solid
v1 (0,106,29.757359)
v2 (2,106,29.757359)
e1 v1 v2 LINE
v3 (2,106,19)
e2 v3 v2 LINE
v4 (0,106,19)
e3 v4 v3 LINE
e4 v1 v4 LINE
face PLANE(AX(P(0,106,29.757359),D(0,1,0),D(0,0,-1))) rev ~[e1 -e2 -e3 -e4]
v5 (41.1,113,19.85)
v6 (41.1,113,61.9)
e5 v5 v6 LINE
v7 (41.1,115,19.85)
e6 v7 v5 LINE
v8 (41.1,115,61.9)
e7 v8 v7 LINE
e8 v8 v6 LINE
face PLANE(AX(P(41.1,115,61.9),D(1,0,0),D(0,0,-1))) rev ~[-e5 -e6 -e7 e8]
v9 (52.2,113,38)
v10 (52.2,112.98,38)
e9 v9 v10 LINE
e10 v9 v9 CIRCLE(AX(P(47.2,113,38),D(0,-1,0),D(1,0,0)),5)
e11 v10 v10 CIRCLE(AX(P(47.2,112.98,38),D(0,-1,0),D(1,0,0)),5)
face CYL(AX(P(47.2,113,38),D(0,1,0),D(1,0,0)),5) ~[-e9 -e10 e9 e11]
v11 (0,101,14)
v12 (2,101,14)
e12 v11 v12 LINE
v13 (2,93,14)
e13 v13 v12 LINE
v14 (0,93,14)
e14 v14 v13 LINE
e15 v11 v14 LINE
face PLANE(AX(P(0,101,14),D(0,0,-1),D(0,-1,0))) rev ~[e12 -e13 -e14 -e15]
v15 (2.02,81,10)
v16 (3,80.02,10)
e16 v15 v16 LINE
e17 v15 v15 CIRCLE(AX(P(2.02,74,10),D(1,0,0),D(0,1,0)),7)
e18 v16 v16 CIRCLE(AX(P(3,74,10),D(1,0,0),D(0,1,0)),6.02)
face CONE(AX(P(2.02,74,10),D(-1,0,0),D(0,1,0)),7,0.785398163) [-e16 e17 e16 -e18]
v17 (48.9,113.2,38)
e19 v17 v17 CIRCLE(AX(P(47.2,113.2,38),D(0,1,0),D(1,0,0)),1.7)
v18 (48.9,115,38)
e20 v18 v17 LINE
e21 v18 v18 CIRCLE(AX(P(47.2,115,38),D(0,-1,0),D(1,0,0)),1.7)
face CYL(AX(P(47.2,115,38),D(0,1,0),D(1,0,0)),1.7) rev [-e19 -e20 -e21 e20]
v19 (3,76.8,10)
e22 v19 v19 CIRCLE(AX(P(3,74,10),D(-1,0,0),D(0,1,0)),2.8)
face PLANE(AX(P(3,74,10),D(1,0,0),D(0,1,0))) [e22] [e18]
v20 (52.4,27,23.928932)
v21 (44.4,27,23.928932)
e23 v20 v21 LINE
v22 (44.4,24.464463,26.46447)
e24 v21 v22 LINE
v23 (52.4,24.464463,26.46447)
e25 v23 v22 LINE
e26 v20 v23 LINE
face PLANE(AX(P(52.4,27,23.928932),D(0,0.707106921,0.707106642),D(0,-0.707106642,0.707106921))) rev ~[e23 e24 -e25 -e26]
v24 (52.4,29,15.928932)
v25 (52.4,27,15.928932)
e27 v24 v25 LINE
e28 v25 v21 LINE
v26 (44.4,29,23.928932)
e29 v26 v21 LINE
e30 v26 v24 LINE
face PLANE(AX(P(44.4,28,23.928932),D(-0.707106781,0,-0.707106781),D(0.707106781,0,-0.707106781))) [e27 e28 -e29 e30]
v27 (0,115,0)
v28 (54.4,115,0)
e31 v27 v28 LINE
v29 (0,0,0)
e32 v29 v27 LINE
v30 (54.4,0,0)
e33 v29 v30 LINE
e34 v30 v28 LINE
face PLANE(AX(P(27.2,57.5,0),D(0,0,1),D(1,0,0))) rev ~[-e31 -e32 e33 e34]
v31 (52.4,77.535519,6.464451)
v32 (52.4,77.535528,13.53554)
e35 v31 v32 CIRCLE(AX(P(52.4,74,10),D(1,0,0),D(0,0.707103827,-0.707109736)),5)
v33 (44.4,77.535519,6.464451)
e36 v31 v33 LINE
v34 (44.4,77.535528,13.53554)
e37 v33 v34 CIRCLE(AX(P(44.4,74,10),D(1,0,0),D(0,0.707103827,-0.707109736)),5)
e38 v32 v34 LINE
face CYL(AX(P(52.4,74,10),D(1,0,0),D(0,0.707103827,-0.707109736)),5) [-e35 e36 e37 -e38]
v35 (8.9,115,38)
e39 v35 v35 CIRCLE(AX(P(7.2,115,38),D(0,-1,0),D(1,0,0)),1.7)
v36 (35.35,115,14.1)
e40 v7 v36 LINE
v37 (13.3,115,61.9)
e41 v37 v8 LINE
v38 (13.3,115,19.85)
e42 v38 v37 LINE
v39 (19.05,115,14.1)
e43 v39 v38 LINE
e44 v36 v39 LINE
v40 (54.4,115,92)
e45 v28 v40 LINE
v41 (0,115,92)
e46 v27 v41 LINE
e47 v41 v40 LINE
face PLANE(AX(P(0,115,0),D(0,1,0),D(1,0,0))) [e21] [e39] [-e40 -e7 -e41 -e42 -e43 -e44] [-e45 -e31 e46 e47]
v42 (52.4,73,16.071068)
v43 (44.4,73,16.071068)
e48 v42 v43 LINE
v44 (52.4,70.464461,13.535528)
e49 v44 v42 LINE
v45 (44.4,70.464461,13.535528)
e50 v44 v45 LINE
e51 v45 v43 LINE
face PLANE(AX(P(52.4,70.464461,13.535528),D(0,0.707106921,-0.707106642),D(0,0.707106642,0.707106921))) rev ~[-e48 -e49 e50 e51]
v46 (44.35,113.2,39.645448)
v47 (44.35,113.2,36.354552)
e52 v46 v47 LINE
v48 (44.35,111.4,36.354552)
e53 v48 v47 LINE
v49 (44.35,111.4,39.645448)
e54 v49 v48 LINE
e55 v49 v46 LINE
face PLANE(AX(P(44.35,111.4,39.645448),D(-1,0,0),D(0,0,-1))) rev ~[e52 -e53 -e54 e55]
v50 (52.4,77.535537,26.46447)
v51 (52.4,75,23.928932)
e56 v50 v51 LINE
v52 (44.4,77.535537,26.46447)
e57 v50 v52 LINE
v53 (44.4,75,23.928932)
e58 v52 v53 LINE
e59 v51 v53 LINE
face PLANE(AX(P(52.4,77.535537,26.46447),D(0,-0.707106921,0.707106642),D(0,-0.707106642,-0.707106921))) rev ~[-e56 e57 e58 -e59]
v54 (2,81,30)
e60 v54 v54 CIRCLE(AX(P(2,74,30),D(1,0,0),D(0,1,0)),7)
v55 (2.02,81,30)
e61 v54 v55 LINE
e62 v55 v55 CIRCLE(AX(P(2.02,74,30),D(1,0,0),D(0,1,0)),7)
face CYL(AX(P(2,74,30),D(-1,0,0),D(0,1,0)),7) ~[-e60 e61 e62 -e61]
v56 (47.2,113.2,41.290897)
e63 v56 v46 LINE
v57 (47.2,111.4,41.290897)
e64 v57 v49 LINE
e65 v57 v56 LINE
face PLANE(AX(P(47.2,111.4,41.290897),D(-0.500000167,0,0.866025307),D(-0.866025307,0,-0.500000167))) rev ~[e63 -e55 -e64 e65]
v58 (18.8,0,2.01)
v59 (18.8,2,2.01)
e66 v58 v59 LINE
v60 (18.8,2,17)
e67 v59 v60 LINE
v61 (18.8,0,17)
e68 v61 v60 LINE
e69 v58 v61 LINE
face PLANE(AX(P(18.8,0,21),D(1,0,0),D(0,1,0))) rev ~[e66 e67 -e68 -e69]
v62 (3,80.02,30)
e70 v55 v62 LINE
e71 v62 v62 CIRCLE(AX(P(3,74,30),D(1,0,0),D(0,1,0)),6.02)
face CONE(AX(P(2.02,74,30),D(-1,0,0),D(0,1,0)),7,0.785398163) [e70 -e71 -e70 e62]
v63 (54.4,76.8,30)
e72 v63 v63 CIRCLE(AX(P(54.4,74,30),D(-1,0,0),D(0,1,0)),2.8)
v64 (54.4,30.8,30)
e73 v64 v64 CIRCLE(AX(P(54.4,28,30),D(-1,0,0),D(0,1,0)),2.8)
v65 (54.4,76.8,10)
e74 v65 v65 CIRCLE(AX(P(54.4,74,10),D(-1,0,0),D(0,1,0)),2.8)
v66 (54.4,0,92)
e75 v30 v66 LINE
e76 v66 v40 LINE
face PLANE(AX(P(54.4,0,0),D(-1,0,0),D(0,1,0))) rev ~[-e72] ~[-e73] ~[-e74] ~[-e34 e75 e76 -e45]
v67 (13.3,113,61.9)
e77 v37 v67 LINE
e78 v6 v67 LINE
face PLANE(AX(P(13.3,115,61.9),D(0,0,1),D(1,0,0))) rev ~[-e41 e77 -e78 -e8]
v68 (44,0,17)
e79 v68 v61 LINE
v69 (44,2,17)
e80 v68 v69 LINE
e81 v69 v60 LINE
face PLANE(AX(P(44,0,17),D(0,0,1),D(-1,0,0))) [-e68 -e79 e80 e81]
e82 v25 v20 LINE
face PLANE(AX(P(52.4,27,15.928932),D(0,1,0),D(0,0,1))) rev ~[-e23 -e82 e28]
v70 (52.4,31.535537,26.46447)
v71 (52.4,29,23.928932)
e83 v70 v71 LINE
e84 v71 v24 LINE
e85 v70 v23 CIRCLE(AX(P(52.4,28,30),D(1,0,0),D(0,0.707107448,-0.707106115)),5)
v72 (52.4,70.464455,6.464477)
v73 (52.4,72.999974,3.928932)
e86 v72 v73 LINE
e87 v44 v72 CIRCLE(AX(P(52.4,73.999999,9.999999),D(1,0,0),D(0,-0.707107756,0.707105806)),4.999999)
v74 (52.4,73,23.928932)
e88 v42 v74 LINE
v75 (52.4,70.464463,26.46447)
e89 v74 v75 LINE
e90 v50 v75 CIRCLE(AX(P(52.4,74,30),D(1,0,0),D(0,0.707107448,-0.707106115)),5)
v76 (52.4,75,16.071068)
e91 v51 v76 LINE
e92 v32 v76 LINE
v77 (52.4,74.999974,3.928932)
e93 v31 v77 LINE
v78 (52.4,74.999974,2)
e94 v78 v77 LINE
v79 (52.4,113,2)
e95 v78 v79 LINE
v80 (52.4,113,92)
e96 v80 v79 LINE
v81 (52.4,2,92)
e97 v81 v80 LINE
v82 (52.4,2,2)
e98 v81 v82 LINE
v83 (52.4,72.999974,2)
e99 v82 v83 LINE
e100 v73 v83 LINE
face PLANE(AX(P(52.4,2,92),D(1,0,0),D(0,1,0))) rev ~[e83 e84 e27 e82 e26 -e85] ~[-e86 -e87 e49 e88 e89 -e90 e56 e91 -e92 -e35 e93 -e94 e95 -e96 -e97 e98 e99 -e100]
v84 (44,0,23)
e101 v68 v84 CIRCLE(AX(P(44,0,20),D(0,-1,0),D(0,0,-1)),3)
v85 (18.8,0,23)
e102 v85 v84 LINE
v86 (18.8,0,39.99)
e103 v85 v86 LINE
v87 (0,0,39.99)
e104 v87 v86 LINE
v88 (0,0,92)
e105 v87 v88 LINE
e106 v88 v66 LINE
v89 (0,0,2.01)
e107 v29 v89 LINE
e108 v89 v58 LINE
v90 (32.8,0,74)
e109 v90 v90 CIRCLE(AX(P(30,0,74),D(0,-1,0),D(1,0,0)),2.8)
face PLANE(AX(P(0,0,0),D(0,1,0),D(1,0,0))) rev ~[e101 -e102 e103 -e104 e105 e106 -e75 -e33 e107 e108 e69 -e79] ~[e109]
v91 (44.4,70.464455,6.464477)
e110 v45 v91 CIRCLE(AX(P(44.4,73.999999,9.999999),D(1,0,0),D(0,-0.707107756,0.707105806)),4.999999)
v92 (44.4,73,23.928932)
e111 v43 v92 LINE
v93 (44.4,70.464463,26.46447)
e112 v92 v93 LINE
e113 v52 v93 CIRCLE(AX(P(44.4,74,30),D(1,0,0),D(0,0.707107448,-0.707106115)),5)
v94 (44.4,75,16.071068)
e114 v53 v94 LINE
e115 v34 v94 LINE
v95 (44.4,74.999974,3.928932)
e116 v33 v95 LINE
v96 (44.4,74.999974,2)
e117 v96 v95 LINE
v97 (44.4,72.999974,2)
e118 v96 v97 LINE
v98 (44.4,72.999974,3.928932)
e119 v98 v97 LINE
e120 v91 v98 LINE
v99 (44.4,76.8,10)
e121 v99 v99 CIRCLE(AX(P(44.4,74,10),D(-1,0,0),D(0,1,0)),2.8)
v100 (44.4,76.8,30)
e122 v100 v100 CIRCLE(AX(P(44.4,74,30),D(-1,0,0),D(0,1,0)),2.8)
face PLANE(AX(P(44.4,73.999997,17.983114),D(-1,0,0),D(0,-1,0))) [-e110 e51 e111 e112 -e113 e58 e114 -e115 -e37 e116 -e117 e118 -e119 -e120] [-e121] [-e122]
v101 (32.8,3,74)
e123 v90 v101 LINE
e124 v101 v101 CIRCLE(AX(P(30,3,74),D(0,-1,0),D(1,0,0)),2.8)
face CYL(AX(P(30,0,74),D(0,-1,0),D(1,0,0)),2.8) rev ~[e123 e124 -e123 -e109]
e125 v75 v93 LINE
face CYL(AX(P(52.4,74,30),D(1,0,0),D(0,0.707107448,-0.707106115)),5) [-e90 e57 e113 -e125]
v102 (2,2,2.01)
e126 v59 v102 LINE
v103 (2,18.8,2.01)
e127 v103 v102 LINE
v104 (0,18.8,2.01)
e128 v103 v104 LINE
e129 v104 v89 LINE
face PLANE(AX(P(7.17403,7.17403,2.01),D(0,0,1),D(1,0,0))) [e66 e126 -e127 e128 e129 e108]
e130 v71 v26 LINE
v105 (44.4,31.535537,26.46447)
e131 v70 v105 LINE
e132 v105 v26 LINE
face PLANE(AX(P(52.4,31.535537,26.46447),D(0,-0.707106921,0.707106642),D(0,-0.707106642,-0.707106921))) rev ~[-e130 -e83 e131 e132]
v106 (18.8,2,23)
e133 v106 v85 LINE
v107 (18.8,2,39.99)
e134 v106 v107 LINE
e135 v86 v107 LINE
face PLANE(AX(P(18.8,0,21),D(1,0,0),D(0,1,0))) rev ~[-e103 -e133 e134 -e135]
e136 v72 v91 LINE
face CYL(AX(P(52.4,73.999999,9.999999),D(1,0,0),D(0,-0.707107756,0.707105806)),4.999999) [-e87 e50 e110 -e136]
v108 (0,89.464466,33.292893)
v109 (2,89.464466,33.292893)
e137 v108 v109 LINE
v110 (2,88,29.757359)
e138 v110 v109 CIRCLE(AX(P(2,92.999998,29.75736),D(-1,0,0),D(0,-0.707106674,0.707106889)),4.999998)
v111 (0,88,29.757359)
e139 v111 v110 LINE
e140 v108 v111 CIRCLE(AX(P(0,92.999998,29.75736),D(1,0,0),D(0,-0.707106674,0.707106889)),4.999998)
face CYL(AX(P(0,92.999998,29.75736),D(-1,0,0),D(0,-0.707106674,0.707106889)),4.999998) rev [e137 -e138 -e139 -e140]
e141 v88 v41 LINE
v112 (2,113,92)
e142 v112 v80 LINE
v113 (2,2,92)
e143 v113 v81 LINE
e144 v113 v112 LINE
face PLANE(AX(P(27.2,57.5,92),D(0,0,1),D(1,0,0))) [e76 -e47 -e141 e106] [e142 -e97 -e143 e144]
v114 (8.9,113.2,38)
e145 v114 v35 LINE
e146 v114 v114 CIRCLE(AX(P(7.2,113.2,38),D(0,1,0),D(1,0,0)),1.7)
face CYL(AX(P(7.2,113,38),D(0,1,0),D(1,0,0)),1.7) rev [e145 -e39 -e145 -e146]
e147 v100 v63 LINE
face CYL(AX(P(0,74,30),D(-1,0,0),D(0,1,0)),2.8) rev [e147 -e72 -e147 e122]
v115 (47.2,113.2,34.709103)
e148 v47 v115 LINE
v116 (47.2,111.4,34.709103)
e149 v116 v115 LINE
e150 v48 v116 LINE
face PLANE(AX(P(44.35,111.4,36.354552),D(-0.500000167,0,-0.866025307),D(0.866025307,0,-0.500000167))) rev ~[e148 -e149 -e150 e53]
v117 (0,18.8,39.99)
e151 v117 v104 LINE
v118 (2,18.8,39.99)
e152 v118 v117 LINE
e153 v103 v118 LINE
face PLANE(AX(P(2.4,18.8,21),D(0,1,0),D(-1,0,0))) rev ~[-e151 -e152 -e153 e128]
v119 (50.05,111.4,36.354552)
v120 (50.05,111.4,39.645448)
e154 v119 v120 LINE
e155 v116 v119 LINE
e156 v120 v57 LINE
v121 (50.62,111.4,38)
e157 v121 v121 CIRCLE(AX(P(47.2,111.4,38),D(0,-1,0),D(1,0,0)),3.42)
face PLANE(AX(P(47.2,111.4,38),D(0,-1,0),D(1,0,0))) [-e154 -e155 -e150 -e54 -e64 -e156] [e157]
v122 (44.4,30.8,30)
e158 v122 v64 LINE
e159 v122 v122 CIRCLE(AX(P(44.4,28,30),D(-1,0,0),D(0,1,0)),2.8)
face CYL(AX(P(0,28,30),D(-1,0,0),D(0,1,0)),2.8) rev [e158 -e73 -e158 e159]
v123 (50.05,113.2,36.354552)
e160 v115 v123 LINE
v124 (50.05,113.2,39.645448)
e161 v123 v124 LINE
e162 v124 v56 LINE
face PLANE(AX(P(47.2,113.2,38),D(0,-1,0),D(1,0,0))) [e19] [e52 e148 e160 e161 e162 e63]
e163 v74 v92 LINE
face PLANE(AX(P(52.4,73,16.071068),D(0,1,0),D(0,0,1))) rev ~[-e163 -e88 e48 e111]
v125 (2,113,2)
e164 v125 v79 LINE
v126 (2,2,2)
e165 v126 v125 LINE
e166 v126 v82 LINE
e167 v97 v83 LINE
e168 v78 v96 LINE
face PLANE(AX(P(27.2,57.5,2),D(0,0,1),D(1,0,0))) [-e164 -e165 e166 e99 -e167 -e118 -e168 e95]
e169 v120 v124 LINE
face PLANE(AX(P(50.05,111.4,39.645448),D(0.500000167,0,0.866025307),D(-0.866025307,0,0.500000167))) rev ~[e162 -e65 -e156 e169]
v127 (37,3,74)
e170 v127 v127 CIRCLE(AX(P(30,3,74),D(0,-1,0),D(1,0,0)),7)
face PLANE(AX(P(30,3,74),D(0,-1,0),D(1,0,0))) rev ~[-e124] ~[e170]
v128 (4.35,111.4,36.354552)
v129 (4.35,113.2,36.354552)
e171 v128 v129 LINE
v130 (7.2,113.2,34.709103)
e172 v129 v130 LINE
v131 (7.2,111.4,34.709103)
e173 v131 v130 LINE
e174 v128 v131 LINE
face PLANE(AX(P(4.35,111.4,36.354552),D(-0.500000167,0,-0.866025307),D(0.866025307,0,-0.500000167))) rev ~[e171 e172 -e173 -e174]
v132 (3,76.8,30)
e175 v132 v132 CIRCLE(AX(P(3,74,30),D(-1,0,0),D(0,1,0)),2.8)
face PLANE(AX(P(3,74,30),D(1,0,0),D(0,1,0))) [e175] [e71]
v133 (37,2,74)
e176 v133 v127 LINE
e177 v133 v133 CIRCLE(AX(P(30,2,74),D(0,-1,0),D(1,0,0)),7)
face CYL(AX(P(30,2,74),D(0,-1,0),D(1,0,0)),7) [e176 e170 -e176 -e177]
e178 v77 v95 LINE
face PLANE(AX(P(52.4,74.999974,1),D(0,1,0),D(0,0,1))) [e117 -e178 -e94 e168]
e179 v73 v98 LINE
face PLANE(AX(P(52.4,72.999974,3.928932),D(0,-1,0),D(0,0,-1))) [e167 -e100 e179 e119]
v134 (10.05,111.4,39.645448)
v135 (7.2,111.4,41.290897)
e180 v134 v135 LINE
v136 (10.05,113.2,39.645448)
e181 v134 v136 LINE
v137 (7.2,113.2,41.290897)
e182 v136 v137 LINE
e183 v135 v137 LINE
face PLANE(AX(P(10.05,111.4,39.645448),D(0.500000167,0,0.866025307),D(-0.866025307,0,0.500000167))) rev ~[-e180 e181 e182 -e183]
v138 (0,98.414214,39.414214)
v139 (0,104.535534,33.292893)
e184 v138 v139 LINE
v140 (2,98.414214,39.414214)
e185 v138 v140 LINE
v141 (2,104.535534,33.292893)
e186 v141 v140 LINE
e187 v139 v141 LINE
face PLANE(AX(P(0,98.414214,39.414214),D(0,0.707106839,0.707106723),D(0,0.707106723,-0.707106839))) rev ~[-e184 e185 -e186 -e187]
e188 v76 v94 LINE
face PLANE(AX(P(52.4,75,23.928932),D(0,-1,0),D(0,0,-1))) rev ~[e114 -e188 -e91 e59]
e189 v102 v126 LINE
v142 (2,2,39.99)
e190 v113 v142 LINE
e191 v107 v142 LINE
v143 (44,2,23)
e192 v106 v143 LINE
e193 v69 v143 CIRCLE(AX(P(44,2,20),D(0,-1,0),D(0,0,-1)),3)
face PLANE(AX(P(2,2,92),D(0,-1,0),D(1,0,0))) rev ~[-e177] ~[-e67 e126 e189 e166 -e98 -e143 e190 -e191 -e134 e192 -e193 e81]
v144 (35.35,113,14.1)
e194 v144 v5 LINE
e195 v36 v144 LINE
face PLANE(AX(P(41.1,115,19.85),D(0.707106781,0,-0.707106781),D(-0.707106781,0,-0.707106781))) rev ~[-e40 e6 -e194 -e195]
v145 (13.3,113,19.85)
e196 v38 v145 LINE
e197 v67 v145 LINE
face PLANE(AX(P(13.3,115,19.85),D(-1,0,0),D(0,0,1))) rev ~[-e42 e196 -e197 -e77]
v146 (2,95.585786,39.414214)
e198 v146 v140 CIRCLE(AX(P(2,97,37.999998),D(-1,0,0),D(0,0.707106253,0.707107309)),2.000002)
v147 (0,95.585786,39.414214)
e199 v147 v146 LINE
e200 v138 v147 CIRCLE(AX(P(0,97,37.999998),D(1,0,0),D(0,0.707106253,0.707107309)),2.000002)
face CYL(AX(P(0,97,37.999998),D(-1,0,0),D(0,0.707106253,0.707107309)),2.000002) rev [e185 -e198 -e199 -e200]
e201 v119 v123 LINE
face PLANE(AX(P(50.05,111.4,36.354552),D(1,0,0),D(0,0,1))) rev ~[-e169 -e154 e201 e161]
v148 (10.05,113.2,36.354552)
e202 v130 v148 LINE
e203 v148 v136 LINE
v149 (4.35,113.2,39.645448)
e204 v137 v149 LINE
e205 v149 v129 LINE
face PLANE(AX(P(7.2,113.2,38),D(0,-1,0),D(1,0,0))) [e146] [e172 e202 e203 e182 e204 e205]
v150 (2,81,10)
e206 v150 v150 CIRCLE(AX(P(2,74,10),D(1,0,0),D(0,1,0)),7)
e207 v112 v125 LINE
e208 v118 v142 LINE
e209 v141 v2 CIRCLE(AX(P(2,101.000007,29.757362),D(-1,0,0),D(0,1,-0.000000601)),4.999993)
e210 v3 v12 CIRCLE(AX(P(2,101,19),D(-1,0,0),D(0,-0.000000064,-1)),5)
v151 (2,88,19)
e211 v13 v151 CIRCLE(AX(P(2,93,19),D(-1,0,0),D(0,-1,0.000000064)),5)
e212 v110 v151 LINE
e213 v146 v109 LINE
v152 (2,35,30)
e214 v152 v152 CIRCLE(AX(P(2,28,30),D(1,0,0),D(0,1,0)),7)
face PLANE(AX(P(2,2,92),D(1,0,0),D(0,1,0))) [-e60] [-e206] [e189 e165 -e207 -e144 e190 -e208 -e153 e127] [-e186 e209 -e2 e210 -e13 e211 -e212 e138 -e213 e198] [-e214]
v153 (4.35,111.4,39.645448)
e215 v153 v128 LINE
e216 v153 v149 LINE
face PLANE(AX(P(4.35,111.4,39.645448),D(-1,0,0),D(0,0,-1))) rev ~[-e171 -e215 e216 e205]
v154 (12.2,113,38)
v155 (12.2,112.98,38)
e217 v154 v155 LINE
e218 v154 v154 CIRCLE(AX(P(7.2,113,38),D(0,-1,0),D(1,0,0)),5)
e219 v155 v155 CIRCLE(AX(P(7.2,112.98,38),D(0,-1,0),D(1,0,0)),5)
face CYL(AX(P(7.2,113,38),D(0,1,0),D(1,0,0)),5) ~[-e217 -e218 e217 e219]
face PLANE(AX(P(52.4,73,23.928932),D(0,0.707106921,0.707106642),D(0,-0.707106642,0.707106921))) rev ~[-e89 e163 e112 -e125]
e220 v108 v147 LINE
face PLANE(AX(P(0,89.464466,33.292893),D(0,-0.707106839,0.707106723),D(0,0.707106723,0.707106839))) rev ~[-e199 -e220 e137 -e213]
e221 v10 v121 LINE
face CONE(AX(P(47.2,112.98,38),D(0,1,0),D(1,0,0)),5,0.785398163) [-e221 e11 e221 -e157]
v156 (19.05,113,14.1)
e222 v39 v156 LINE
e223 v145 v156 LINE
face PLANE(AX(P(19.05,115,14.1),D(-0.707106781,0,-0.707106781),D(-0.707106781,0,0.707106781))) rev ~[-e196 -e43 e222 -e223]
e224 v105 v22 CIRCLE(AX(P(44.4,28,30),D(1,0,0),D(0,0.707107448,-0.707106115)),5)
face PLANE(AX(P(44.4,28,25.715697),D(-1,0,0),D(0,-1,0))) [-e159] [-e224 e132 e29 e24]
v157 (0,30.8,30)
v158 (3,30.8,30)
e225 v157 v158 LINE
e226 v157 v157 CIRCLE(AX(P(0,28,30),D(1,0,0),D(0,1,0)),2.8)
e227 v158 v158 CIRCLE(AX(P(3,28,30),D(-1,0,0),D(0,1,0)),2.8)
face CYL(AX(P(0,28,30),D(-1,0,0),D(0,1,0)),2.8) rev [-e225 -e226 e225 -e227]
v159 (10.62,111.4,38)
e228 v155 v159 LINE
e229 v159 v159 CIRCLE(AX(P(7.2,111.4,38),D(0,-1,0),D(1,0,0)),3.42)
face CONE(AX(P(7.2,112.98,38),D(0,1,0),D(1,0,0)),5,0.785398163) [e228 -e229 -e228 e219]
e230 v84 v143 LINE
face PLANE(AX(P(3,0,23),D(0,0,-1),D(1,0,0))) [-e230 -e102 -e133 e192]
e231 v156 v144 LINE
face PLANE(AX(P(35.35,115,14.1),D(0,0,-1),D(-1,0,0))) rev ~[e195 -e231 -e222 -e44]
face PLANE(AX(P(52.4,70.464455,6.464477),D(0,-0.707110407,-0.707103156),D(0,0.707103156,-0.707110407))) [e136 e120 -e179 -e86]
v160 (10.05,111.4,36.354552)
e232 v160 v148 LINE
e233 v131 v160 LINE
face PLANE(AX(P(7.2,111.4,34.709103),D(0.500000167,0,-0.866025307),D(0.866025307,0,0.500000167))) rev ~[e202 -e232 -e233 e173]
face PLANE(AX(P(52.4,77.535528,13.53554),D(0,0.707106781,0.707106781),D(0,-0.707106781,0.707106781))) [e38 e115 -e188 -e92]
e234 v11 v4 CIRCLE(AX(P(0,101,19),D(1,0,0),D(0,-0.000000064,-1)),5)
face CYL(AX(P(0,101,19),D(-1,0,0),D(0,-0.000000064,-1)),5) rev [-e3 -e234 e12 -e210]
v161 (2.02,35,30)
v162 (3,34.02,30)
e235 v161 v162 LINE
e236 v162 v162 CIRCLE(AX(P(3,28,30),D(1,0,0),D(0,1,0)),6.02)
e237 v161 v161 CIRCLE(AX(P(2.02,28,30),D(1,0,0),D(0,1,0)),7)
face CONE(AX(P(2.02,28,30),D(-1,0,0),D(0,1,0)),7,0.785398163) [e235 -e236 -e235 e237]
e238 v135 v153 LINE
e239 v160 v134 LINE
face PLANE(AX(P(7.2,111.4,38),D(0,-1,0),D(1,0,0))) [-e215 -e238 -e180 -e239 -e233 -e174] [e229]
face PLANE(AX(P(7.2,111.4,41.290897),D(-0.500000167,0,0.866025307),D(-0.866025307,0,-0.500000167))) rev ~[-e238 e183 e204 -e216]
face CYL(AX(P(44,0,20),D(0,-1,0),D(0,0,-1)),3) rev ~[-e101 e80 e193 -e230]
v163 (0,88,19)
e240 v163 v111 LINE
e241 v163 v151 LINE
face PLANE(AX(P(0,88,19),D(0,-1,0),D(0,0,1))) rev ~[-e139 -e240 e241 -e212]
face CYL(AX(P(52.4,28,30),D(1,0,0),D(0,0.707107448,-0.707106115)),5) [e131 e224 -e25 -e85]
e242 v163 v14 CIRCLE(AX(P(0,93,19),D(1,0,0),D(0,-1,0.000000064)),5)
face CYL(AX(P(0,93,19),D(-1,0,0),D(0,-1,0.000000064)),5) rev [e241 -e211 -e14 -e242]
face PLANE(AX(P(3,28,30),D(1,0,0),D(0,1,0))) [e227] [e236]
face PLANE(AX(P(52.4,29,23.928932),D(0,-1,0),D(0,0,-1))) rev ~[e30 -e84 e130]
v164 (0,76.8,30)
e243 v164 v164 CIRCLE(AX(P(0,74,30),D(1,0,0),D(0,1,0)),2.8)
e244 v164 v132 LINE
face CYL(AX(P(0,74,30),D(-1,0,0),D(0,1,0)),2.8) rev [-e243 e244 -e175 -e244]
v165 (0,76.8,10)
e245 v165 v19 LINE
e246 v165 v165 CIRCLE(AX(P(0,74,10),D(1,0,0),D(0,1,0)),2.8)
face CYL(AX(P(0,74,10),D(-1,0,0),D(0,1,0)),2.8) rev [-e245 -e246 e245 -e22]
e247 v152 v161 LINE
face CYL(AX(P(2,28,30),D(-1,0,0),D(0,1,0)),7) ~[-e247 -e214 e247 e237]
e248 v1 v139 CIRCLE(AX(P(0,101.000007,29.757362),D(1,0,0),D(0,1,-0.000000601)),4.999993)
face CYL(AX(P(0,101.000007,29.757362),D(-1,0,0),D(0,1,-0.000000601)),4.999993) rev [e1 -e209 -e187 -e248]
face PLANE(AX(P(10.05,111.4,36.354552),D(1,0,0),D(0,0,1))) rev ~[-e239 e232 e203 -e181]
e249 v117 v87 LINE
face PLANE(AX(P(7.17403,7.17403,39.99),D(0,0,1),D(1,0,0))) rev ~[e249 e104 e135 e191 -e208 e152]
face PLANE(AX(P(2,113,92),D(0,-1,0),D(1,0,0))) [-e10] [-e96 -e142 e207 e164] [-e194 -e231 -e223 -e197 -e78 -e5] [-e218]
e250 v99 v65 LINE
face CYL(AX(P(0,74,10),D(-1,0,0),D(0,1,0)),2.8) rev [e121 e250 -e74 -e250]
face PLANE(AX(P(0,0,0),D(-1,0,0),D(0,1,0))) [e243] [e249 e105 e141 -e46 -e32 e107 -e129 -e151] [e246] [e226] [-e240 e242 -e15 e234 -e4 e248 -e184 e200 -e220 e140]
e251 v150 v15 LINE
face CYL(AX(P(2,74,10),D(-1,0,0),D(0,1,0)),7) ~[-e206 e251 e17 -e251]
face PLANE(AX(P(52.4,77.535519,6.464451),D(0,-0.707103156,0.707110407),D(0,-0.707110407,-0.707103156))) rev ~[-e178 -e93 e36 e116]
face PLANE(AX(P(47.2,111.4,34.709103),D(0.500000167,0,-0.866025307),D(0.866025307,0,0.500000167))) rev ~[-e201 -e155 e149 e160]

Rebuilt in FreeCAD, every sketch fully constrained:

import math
import FreeCAD as App
import Part
import Sketcher
Q = App.Units.Quantity


def edges_at(feature, points):
    """Names of the edges that pass closest to the given points."""
    edges = feature.Shape.Edges
    near = lambda p: min(range(len(edges)), key=lambda i: edges[i].distToShape(Part.Vertex(*p))[0])
    return sorted({f"Edge{near(p) + 1}" for p in points})

doc = App.newDocument("Part")
body = doc.addObject("PartDesign::Body", "Body")

# Sketch on XY plane
sketch1 = body.newObject("Sketcher::SketchObject", "Sketch")
sketch1.AttachmentSupport = (doc.getObject("XY_Plane"), [""])
sketch1.MapMode = "FlatFace"
sketch1.addGeometry([
    Part.LineSegment(App.Vector(0, 115, 0), App.Vector(0, 0, 0)),
    Part.LineSegment(App.Vector(0, 0, 0), App.Vector(54, 0, 0)),
    Part.LineSegment(App.Vector(54, 0, 0), App.Vector(54, 115, 0)),
    Part.LineSegment(App.Vector(54, 115, 0), App.Vector(0, 115, 0)),
], False)
sketch1.addConstraint([
    Sketcher.Constraint("Coincident", 0, 2, 1, 1),
    Sketcher.Constraint("Coincident", 1, 2, 2, 1),
    Sketcher.Constraint("Coincident", 2, 2, 3, 1),
    Sketcher.Constraint("Coincident", 3, 2, 0, 1),
    Sketcher.Constraint("Vertical", 0),
    Sketcher.Constraint("Horizontal", 1),
    Sketcher.Constraint("Vertical", 2),
    Sketcher.Constraint("Horizontal", 3),
    Sketcher.Constraint("Coincident", 0, 2, -1, 1),
    Sketcher.Constraint("DistanceY", 0, 2, 0, 1, Q("115 mm")),
    Sketcher.Constraint("DistanceX", 1, 1, 1, 2, Q("54.4 mm")),
])
pad1 = body.newObject("PartDesign::Pad", "Pad")
pad1.Profile = sketch1
pad1.Length = 92

# Sketch on XY plane
sketch2 = body.newObject("Sketcher::SketchObject", "Sketch001")
sketch2.AttachmentSupport = (doc.getObject("XY_Plane"), [""])
sketch2.MapMode = "FlatFace"
sketch2.AttachmentOffset = App.Placement(App.Vector(0, 0, 92), App.Rotation())
sketch2.addGeometry([
    Part.LineSegment(App.Vector(2, 113, 0), App.Vector(2, 2, 0)),
    Part.LineSegment(App.Vector(2, 2, 0), App.Vector(52, 2, 0)),
    Part.LineSegment(App.Vector(52, 2, 0), App.Vector(52, 113, 0)),
    Part.LineSegment(App.Vector(52, 113, 0), App.Vector(2, 113, 0)),
], False)
sketch2.addConstraint([
    Sketcher.Constraint("Coincident", 0, 2, 1, 1),
    Sketcher.Constraint("Coincident", 1, 2, 2, 1),
    Sketcher.Constraint("Coincident", 2, 2, 3, 1),
    Sketcher.Constraint("Coincident", 3, 2, 0, 1),
    Sketcher.Constraint("Vertical", 0),
    Sketcher.Constraint("Horizontal", 1),
    Sketcher.Constraint("Vertical", 2),
    Sketcher.Constraint("Horizontal", 3),
    Sketcher.Constraint("DistanceY", 0, 2, 0, 1, Q("111 mm")),
    Sketcher.Constraint("DistanceX", 1, 1, 1, 2, Q("50.4 mm")),
    Sketcher.Constraint("DistanceX", -1, 1, 0, 2, Q("2 mm")),
    Sketcher.Constraint("DistanceY", -1, 1, 0, 2, Q("2 mm")),
])
pocket1 = body.newObject("PartDesign::Pocket", "Pocket")
pocket1.Profile = sketch2
pocket1.Length = 90

# Sketch on XZ plane
sketch3 = body.newObject("Sketcher::SketchObject", "Sketch002")
sketch3.AttachmentSupport = (doc.getObject("XZ_Plane"), [""])
sketch3.MapMode = "FlatFace"
sketch3.addGeometry([
    Part.LineSegment(App.Vector(44, 23, 0), App.Vector(3, 23, 0)),
    Part.LineSegment(App.Vector(3, 23, 0), App.Vector(3, 17, 0)),
    Part.LineSegment(App.Vector(3, 17, 0), App.Vector(44, 17, 0)),
    Part.ArcOfCircle(Part.Circle(App.Vector(44, 20, 0), App.Vector(0, 0, 1), 3), math.radians(-90), math.radians(90)),
], False)
sketch3.addConstraint([
    Sketcher.Constraint("Coincident", 0, 2, 1, 1),
    Sketcher.Constraint("Coincident", 1, 2, 2, 1),
    Sketcher.Constraint("Tangent", 2, 2, 3, 1),
    Sketcher.Constraint("Tangent", 3, 2, 0, 1),
    Sketcher.Constraint("Horizontal", 0),
    Sketcher.Constraint("Vertical", 1),
    Sketcher.Constraint("Horizontal", 2),
    Sketcher.Constraint("Radius", 3, Q("3 mm")),
    Sketcher.Constraint("DistanceX", 0, 2, 0, 1, Q("41 mm")),
    Sketcher.Constraint("DistanceX", -1, 1, 3, 3, Q("44 mm")),
    Sketcher.Constraint("DistanceY", -1, 1, 3, 3, Q("20 mm")),
])
pocket2 = body.newObject("PartDesign::Pocket", "Pocket001")
pocket2.Profile = sketch3
pocket2.Length = 3

# Sketch on XZ plane
sketch4 = body.newObject("Sketcher::SketchObject", "Sketch003")
sketch4.AttachmentSupport = (doc.getObject("XZ_Plane"), [""])
sketch4.MapMode = "FlatFace"
sketch4.AttachmentOffset = App.Placement(App.Vector(0, 0, -115), App.Rotation())
sketch4.addGeometry([
    Part.Circle(App.Vector(7.2, 38, 0), App.Vector(0, 0, 1), 1.7),  # 0
    Part.Circle(App.Vector(47.2, 38, 0), App.Vector(0, 0, 1), 1.7),  # 1
    Part.LineSegment(App.Vector(41.1, 61.9, 0), App.Vector(13.3, 61.9, 0)),  # 2
    Part.LineSegment(App.Vector(13.3, 61.9, 0), App.Vector(13.3, 19.9, 0)),  # 3
    Part.LineSegment(App.Vector(13.3, 19.9, 0), App.Vector(19.1, 14.1, 0)),  # 4
    Part.LineSegment(App.Vector(19.1, 14.1, 0), App.Vector(35.4, 14.1, 0)),  # 5
    Part.LineSegment(App.Vector(35.4, 14.1, 0), App.Vector(41.1, 19.9, 0)),  # 6
    Part.LineSegment(App.Vector(41.1, 19.9, 0), App.Vector(41.1, 61.9, 0)),  # 7
], False)
sketch4.addConstraint([
    Sketcher.Constraint("Coincident", 2, 2, 3, 1),
    Sketcher.Constraint("Coincident", 3, 2, 4, 1),
    Sketcher.Constraint("Coincident", 4, 2, 5, 1),
    Sketcher.Constraint("Coincident", 5, 2, 6, 1),
    Sketcher.Constraint("Coincident", 6, 2, 7, 1),
    Sketcher.Constraint("Coincident", 7, 2, 2, 1),
    Sketcher.Constraint("Horizontal", 2),
    Sketcher.Constraint("Vertical", 3),
    Sketcher.Constraint("Horizontal", 5),
    Sketcher.Constraint("Vertical", 7),
    Sketcher.Constraint("Equal", 0, 1),
    Sketcher.Constraint("Perpendicular", 4, 6),
    Sketcher.Constraint("Horizontal", 0, 3, 1, 3),
    Sketcher.Constraint("Horizontal", 3, 2, 6, 2),
    Sketcher.Constraint("Equal", 4, 6),
    Sketcher.Constraint("Diameter", 0, Q("3.4 mm")),
    Sketcher.Constraint("DistanceX", 2, 2, 2, 1, Q("27.8 mm")),
    Sketcher.Constraint("DistanceX", 5, 1, 5, 2, Q("16.3 mm")),
    Sketcher.Constraint("DistanceY", -1, 1, 0, 3, Q("38 mm")),
    Sketcher.Constraint("DistanceX", 0, 3, 1, 3, Q("40 mm")),
    Sketcher.Constraint("DistanceY", 3, 2, 3, 1, Q("42.05 mm")),
    Sketcher.Constraint("DistanceX", -1, 1, 0, 3, Q("7.2 mm")),
    Sketcher.Constraint("DistanceX", -1, 1, 2, 2, Q("13.3 mm")),
    Sketcher.Constraint("DistanceY", -1, 1, 2, 2, Q("61.9 mm")),
])
pocket3 = body.newObject("PartDesign::Pocket", "Pocket002")
pocket3.Profile = sketch4
pocket3.Length = 3
pocket3.Reversed = True

# Sketch on XY plane
sketch5 = body.newObject("Sketcher::SketchObject", "Sketch004")
sketch5.AttachmentSupport = (doc.getObject("XY_Plane"), [""])
sketch5.MapMode = "FlatFace"
sketch5.AttachmentOffset = App.Placement(App.Vector(0, 0, 21), App.Rotation())
sketch5.addGeometry([
    Part.LineSegment(App.Vector(0, 0, 0), App.Vector(18.8, 0, 0)),  # 0
    Part.LineSegment(App.Vector(18.8, 0, 0), App.Vector(18.8, 2.4, 0)),  # 1
    Part.LineSegment(App.Vector(18.8, 2.4, 0), App.Vector(2.4, 18.8, 0)),  # 2
    Part.LineSegment(App.Vector(2.4, 18.8, 0), App.Vector(0, 18.8, 0)),  # 3
    Part.LineSegment(App.Vector(0, 18.8, 0), App.Vector(0, 0, 0)),  # 4
], False)
sketch5.addConstraint([
    Sketcher.Constraint("Coincident", 0, 2, 1, 1),
    Sketcher.Constraint("Coincident", 1, 2, 2, 1),
    Sketcher.Constraint("Coincident", 2, 2, 3, 1),
    Sketcher.Constraint("Coincident", 3, 2, 4, 1),
    Sketcher.Constraint("Coincident", 4, 2, 0, 1),
    Sketcher.Constraint("Horizontal", 0),
    Sketcher.Constraint("Vertical", 1),
    Sketcher.Constraint("Horizontal", 3),
    Sketcher.Constraint("Vertical", 4),
    Sketcher.Constraint("Coincident", 4, 2, -1, 1),
    Sketcher.Constraint("Equal", 3, 1),
    Sketcher.Constraint("Equal", 0, 4),
    Sketcher.Constraint("DistanceX", 0, 1, 0, 2, Q("18.8 mm")),
    Sketcher.Constraint("DistanceX", 3, 2, 3, 1, Q("2.4 mm")),
])
pocket4 = body.newObject("PartDesign::Pocket", "Pocket003")
pocket4.Profile = sketch5
pocket4.Length = 37.98
pocket4.Midplane = True

# Sketch on YZ plane
sketch6 = body.newObject("Sketcher::SketchObject", "Sketch005")
sketch6.AttachmentSupport = (doc.getObject("YZ_Plane"), [""])
sketch6.MapMode = "FlatFace"
sketch6.addGeometry([
    Part.LineSegment(App.Vector(106, 19, 0), App.Vector(106, 29.8, 0)),  # 0
    Part.ArcOfCircle(Part.Circle(App.Vector(101, 29.8, 0), App.Vector(0, 0, 1), 5), math.radians(0), math.radians(45)),  # 1
    Part.LineSegment(App.Vector(104.5, 33.3, 0), App.Vector(98.4, 39.4, 0)),  # 2
    Part.ArcOfCircle(Part.Circle(App.Vector(97, 38, 0), App.Vector(0, 0, 1), 2), math.radians(45), math.radians(135)),  # 3
    Part.LineSegment(App.Vector(95.6, 39.4, 0), App.Vector(89.5, 33.3, 0)),  # 4
    Part.ArcOfCircle(Part.Circle(App.Vector(93, 29.8, 0), App.Vector(0, 0, 1), 5), math.radians(135), math.radians(180)),  # 5
    Part.LineSegment(App.Vector(88, 29.8, 0), App.Vector(88, 19, 0)),  # 6
    Part.ArcOfCircle(Part.Circle(App.Vector(93, 19, 0), App.Vector(0, 0, 1), 5), math.radians(180), math.radians(270)),  # 7
    Part.LineSegment(App.Vector(93, 14, 0), App.Vector(101, 14, 0)),  # 8
    Part.ArcOfCircle(Part.Circle(App.Vector(101, 19, 0), App.Vector(0, 0, 1), 5), math.radians(-90), math.radians(0)),  # 9
], False)
sketch6.addConstraint([
    Sketcher.Constraint("Tangent", 0, 2, 1, 1),
    Sketcher.Constraint("Tangent", 1, 2, 2, 1),
    Sketcher.Constraint("Tangent", 2, 2, 3, 1),
    Sketcher.Constraint("Tangent", 3, 2, 4, 1),
    Sketcher.Constraint("Tangent", 4, 2, 5, 1),
    Sketcher.Constraint("Tangent", 5, 2, 6, 1),
    Sketcher.Constraint("Tangent", 6, 2, 7, 1),
    Sketcher.Constraint("Tangent", 7, 2, 8, 1),
    Sketcher.Constraint("Tangent", 8, 2, 9, 1),
    Sketcher.Constraint("Tangent", 9, 2, 0, 1),
    Sketcher.Constraint("Vertical", 0),
    Sketcher.Constraint("Vertical", 6),
    Sketcher.Constraint("Horizontal", 8),
    Sketcher.Constraint("Equal", 5, 7),
    Sketcher.Constraint("Equal", 7, 9),
    Sketcher.Constraint("Perpendicular", 2, 4),
    Sketcher.Constraint("Horizontal", 1, 3, 5, 3),
    Sketcher.Constraint("Horizontal", 2, 2, 3, 2),
    Sketcher.Constraint("Horizontal", 1, 2, 4, 2),
    Sketcher.Constraint("Radius", 7, Q("5 mm")),
    Sketcher.Constraint("DistanceX", 8, 1, 8, 2, Q("8 mm")),
    Sketcher.Constraint("DistanceX", -1, 1, 3, 3, Q("97 mm")),
    Sketcher.Constraint("DistanceY", -1, 1, 7, 3, Q("19 mm")),
    Sketcher.Constraint("DistanceY", 7, 3, 3, 3, Q("18.999998 mm")),
    Sketcher.Constraint("Radius", 3, Q("2.000002 mm")),
])
pocket5 = body.newObject("PartDesign::Pocket", "Pocket004")
pocket5.Profile = sketch6
pocket5.Length = 2.02
pocket5.Reversed = True

# Sketch on XZ plane
sketch7 = body.newObject("Sketcher::SketchObject", "Sketch006")
sketch7.AttachmentSupport = (doc.getObject("XZ_Plane"), [""])
sketch7.MapMode = "FlatFace"
sketch7.AttachmentOffset = App.Placement(App.Vector(0, 0, -113), App.Rotation())
sketch7.addGeometry([
    Part.Circle(App.Vector(7.2, 38, 0), App.Vector(0, 0, 1), 5),
    Part.Circle(App.Vector(7.2, 38, 0), App.Vector(0, 0, 1), 1.7),
    Part.Circle(App.Vector(47.2, 38, 0), App.Vector(0, 0, 1), 5),
    Part.Circle(App.Vector(47.2, 38, 0), App.Vector(0, 0, 1), 1.7),
], False)
sketch7.addConstraint([
    Sketcher.Constraint("Coincident", 1, 3, 0, 3),
    Sketcher.Constraint("Coincident", 3, 3, 2, 3),
    Sketcher.Constraint("Equal", 0, 2),
    Sketcher.Constraint("Equal", 1, 3),
    Sketcher.Constraint("Horizontal", 1, 3, 2, 3),
    Sketcher.Constraint("Diameter", 0, Q("10 mm")),
    Sketcher.Constraint("Diameter", 1, Q("3.4 mm")),
    Sketcher.Constraint("DistanceY", -1, 1, 0, 3, Q("38 mm")),
    Sketcher.Constraint("DistanceX", 0, 3, 2, 3, Q("40 mm")),
    Sketcher.Constraint("DistanceX", -1, 1, 0, 3, Q("7.2 mm")),
])
pad2 = body.newObject("PartDesign::Pad", "Pad001")
pad2.Profile = sketch7
pad2.Length = 1.6

# Sketch on XZ plane
sketch8 = body.newObject("Sketcher::SketchObject", "Sketch007")
sketch8.AttachmentSupport = (doc.getObject("XZ_Plane"), [""])
sketch8.MapMode = "FlatFace"
sketch8.AttachmentOffset = App.Placement(App.Vector(0, 0, -111.4), App.Rotation())
sketch8.addGeometry([
    Part.LineSegment(App.Vector(7.2, 41.3, 0), App.Vector(4.3, 39.6, 0)),  # 0
    Part.LineSegment(App.Vector(4.3, 39.6, 0), App.Vector(4.3, 36.4, 0)),  # 1
    Part.LineSegment(App.Vector(4.3, 36.4, 0), App.Vector(7.2, 34.7, 0)),  # 2
    Part.LineSegment(App.Vector(7.2, 34.7, 0), App.Vector(10.1, 36.4, 0)),  # 3
    Part.LineSegment(App.Vector(10.1, 36.4, 0), App.Vector(10.1, 39.6, 0)),  # 4
    Part.LineSegment(App.Vector(10.1, 39.6, 0), App.Vector(7.2, 41.3, 0)),  # 5
    Part.LineSegment(App.Vector(47.2, 41.3, 0), App.Vector(44.4, 39.6, 0)),  # 6
    Part.LineSegment(App.Vector(44.4, 39.6, 0), App.Vector(44.4, 36.4, 0)),  # 7
    Part.LineSegment(App.Vector(44.4, 36.4, 0), App.Vector(47.2, 34.7, 0)),  # 8
    Part.LineSegment(App.Vector(47.2, 34.7, 0), App.Vector(50, 36.4, 0)),  # 9
    Part.LineSegment(App.Vector(50, 36.4, 0), App.Vector(50, 39.6, 0)),  # 10
    Part.LineSegment(App.Vector(50, 39.6, 0), App.Vector(47.2, 41.3, 0)),  # 11
], False)
sketch8.addConstraint([
    Sketcher.Constraint("Coincident", 0, 2, 1, 1),
    Sketcher.Constraint("Coincident", 1, 2, 2, 1),
    Sketcher.Constraint("Coincident", 2, 2, 3, 1),
    Sketcher.Constraint("Coincident", 3, 2, 4, 1),
    Sketcher.Constraint("Coincident", 4, 2, 5, 1),
    Sketcher.Constraint("Coincident", 5, 2, 0, 1),
    Sketcher.Constraint("Coincident", 6, 2, 7, 1),
    Sketcher.Constraint("Coincident", 7, 2, 8, 1),
    Sketcher.Constraint("Coincident", 8, 2, 9, 1),
    Sketcher.Constraint("Coincident", 9, 2, 10, 1),
    Sketcher.Constraint("Coincident", 10, 2, 11, 1),
    Sketcher.Constraint("Coincident", 11, 2, 6, 1),
    Sketcher.Constraint("Vertical", 1),
    Sketcher.Constraint("Vertical", 4),
    Sketcher.Constraint("Vertical", 7),
    Sketcher.Constraint("Vertical", 10),
    Sketcher.Constraint("Parallel", 0, 3),
    Sketcher.Constraint("Parallel", 2, 5),
    Sketcher.Constraint("Parallel", 3, 6),
    Sketcher.Constraint("Parallel", 5, 8),
    Sketcher.Constraint("Parallel", 6, 9),
    Sketcher.Constraint("Parallel", 8, 11),
    Sketcher.Constraint("Horizontal", 1, 2, 3, 2),
    Sketcher.Constraint("Horizontal", 0, 2, 4, 2),
    Sketcher.Constraint("Horizontal", 4, 2, 6, 2),
    Sketcher.Constraint("Horizontal", 3, 2, 7, 2),
    Sketcher.Constraint("Horizontal", 2, 2, 8, 2),
    Sketcher.Constraint("Horizontal", 7, 2, 9, 2),
    Sketcher.Constraint("Horizontal", 6, 2, 10, 2),
    Sketcher.Constraint("Vertical", 2, 2, 5, 2),
    Sketcher.Constraint("Angle", 0, Q("-149.999989 deg")),
    Sketcher.Constraint("DistanceX", 0, 2, 6, 2, Q("40 mm")),
    Sketcher.Constraint("DistanceX", -1, 1, 2, 2, Q("7.2 mm")),
    Sketcher.Constraint("DistanceX", 1, 2, 3, 2, Q("5.7 mm")),
    Sketcher.Constraint("DistanceY", 1, 2, 1, 1, Q("3.290896 mm")),
    Sketcher.Constraint("DistanceY", -1, 1, 0, 2, Q("39.645448 mm")),
])
pocket6 = body.newObject("PartDesign::Pocket", "Pocket005")
pocket6.Profile = sketch8
pocket6.Length = 1.8

# Sketch on YZ plane
sketch9 = body.newObject("Sketcher::SketchObject", "Sketch008")
sketch9.AttachmentSupport = (doc.getObject("YZ_Plane"), [""])
sketch9.MapMode = "FlatFace"
sketch9.AttachmentOffset = App.Placement(App.Vector(0, 0, 2), App.Rotation())
sketch9.addGeometry([
    Part.Circle(App.Vector(28, 30, 0), App.Vector(0, 0, 1), 7),
    Part.Circle(App.Vector(74, 30, 0), App.Vector(0, 0, 1), 7),
    Part.Circle(App.Vector(74, 10, 0), App.Vector(0, 0, 1), 7),
], False)
sketch9.addConstraint([
    Sketcher.Constraint("Equal", 0, 1),
    Sketcher.Constraint("Equal", 1, 2),
    Sketcher.Constraint("Horizontal", 0, 3, 1, 3),
    Sketcher.Constraint("Vertical", 1, 3, 2, 3),
    Sketcher.Constraint("Diameter", 0, Q("14 mm")),
    Sketcher.Constraint("DistanceX", -1, 1, 0, 3, Q("28 mm")),
    Sketcher.Constraint("DistanceY", -1, 1, 0, 3, Q("30 mm")),
    Sketcher.Constraint("DistanceX", -1, 1, 1, 3, Q("74 mm")),
    Sketcher.Constraint("DistanceY", -1, 1, 2, 3, Q("10 mm")),
])
pad3 = body.newObject("PartDesign::Pad", "Pad002")
pad3.Profile = sketch9
pad3.Length = 1

# Sketch on YZ plane
sketch10 = body.newObject("Sketcher::SketchObject", "Sketch009")
sketch10.AttachmentSupport = (doc.getObject("YZ_Plane"), [""])
sketch10.MapMode = "FlatFace"
sketch10.AttachmentOffset = App.Placement(App.Vector(0, 0, 52.4), App.Rotation())
sketch10.addGeometry([
    Part.LineSegment(App.Vector(29, 23.9, 0), App.Vector(31.5, 26.5, 0)),  # 0
    Part.ArcOfCircle(Part.Circle(App.Vector(28, 30, 0), App.Vector(0, 0, 1), 5), math.radians(-45), math.radians(225)),  # 1
    Part.LineSegment(App.Vector(24.5, 26.5, 0), App.Vector(27, 23.9, 0)),  # 2
    Part.LineSegment(App.Vector(27, 23.9, 0), App.Vector(27, 15.9, 0)),  # 3
    Part.LineSegment(App.Vector(27, 15.9, 0), App.Vector(29, 15.9, 0)),  # 4
    Part.LineSegment(App.Vector(29, 15.9, 0), App.Vector(29, 23.9, 0)),  # 5
    Part.LineSegment(App.Vector(75, 23.9, 0), App.Vector(77.5, 26.5, 0)),  # 6
    Part.ArcOfCircle(Part.Circle(App.Vector(74, 30, 0), App.Vector(0, 0, 1), 5), math.radians(-45), math.radians(225)),  # 7
    Part.LineSegment(App.Vector(70.5, 26.5, 0), App.Vector(73, 23.9, 0)),  # 8
    Part.LineSegment(App.Vector(73, 23.9, 0), App.Vector(73, 16.1, 0)),  # 9
    Part.LineSegment(App.Vector(73, 16.1, 0), App.Vector(70.5, 13.5, 0)),  # 10
    Part.ArcOfCircle(Part.Circle(App.Vector(74, 10, 0), App.Vector(0, 0, 1), 5), math.radians(135), math.radians(225)),  # 11
    Part.LineSegment(App.Vector(70.5, 6.5, 0), App.Vector(73, 3.9, 0)),  # 12
    Part.LineSegment(App.Vector(73, 3.9, 0), App.Vector(73, 1, 0)),  # 13
    Part.LineSegment(App.Vector(73, 1, 0), App.Vector(75, 1, 0)),  # 14
    Part.LineSegment(App.Vector(75, 1, 0), App.Vector(75, 3.9, 0)),  # 15
    Part.LineSegment(App.Vector(75, 3.9, 0), App.Vector(77.5, 6.5, 0)),  # 16
    Part.ArcOfCircle(Part.Circle(App.Vector(74, 10, 0), App.Vector(0, 0, 1), 5), math.radians(-45), math.radians(45)),  # 17
    Part.LineSegment(App.Vector(77.5, 13.5, 0), App.Vector(75, 16.1, 0)),  # 18
    Part.LineSegment(App.Vector(75, 16.1, 0), App.Vector(75, 23.9, 0)),  # 19
], False)
sketch10.addConstraint([
    Sketcher.Constraint("Tangent", 0, 2, 1, 1),
    Sketcher.Constraint("Tangent", 1, 2, 2, 1),
    Sketcher.Constraint("Coincident", 2, 2, 3, 1),
    Sketcher.Constraint("Coincident", 3, 2, 4, 1),
    Sketcher.Constraint("Coincident", 4, 2, 5, 1),
    Sketcher.Constraint("Coincident", 5, 2, 0, 1),
    Sketcher.Constraint("Tangent", 6, 2, 7, 1),
    Sketcher.Constraint("Tangent", 7, 2, 8, 1),
    Sketcher.Constraint("Coincident", 8, 2, 9, 1),
    Sketcher.Constraint("Coincident", 9, 2, 10, 1),
    Sketcher.Constraint("Tangent", 10, 2, 11, 1),
    Sketcher.Constraint("Coincident", 11, 2, 12, 1),
    Sketcher.Constraint("Coincident", 12, 2, 13, 1),
    Sketcher.Constraint("Coincident", 13, 2, 14, 1),
    Sketcher.Constraint("Coincident", 14, 2, 15, 1),
    Sketcher.Constraint("Coincident", 15, 2, 16, 1),
    Sketcher.Constraint("Tangent", 16, 2, 17, 1),
    Sketcher.Constraint("Tangent", 17, 2, 18, 1),
    Sketcher.Constraint("Coincident", 18, 2, 19, 1),
    Sketcher.Constraint("Coincident", 19, 2, 6, 1),
    Sketcher.Constraint("Vertical", 3),
    Sketcher.Constraint("Horizontal", 4),
    Sketcher.Constraint("Vertical", 5),
    Sketcher.Constraint("Vertical", 9),
    Sketcher.Constraint("Vertical", 13),
    Sketcher.Constraint("Horizontal", 14),
    Sketcher.Constraint("Vertical", 15),
    Sketcher.Constraint("Vertical", 19),
    Sketcher.Constraint("Coincident", 17, 3, 11, 3),
    Sketcher.Constraint("Equal", 1, 7),
    Sketcher.Constraint("Equal", 7, 11),
    Sketcher.Constraint("Equal", 11, 17),
    Sketcher.Constraint("Perpendicular", 0, 2),
    Sketcher.Constraint("Perpendicular", 2, 6),
    Sketcher.Constraint("Perpendicular", 6, 8),
    Sketcher.Constraint("Perpendicular", 8, 10),
    Sketcher.Constraint("Perpendicular", 12, 16),
    Sketcher.Constraint("Perpendicular", 10, 18),
    Sketcher.Constraint("Horizontal", 1, 3, 7, 3),
    Sketcher.Constraint("Horizontal", 0, 2, 1, 2),
    Sketcher.Constraint("Horizontal", 2, 2, 5, 2),
    Sketcher.Constraint("Horizontal", 5, 2, 8, 2),
    Sketcher.Constraint("Horizontal", 12, 2, 15, 2),
    Sketcher.Constraint("Horizontal", 9, 2, 18, 2),
    Sketcher.Constraint("Horizontal", 8, 2, 19, 2),
    Sketcher.Constraint("Equal", 4, 14),
    Sketcher.Constraint("Equal", 12, 16),
    Sketcher.Constraint("Radius", 1, Q("5 mm")),
    Sketcher.Constraint("DistanceX", 4, 1, 4, 2, Q("2 mm")),
    Sketcher.Constraint("DistanceY", 3, 2, 3, 1, Q("8 mm")),
    Sketcher.Constraint("DistanceX", -1, 1, 1, 3, Q("28 mm")),
    Sketcher.Constraint("DistanceY", -1, 1, 1, 3, Q("30 mm")),
    Sketcher.Constraint("DistanceX", -1, 1, 7, 3, Q("74 mm")),
    Sketcher.Constraint("DistanceY", -1, 1, 11, 3, Q("9.999999 mm")),
    Sketcher.Constraint("DistanceY", -1, 1, 13, 2, Q("1 mm")),
    Sketcher.Constraint("DistanceX", -1, 1, 16, 2, Q("77.535519 mm")),
])
pad4 = body.newObject("PartDesign::Pad", "Pad003")
pad4.Profile = sketch10
pad4.Length = 8
pad4.Reversed = True

# Sketch on XZ plane
sketch11 = body.newObject("Sketcher::SketchObject", "Sketch010")
sketch11.AttachmentSupport = (doc.getObject("XZ_Plane"), [""])
sketch11.MapMode = "FlatFace"
sketch11.AttachmentOffset = App.Placement(App.Vector(0, 0, -28), App.Rotation())
sketch11.addGeometry([
    Part.LineSegment(App.Vector(52, 16, 0), App.Vector(44, 24, 0)),
    Part.LineSegment(App.Vector(44, 24, 0), App.Vector(44, 16, 0)),
    Part.LineSegment(App.Vector(44, 16, 0), App.Vector(52, 16, 0)),
], False)
sketch11.addConstraint([
    Sketcher.Constraint("Coincident", 0, 2, 1, 1),
    Sketcher.Constraint("Coincident", 1, 2, 2, 1),
    Sketcher.Constraint("Coincident", 2, 2, 0, 1),
    Sketcher.Constraint("Vertical", 1),
    Sketcher.Constraint("Horizontal", 2),
    Sketcher.Constraint("Equal", 2, 1),
    Sketcher.Constraint("DistanceX", 2, 1, 2, 2, Q("8 mm")),
    Sketcher.Constraint("DistanceX", -1, 1, 0, 2, Q("44.4 mm")),
    Sketcher.Constraint("DistanceY", -1, 1, 0, 2, Q("23.928932 mm")),
])
pocket7 = body.newObject("PartDesign::Pocket", "Pocket006")
pocket7.Profile = sketch11
pocket7.Length = 3
pocket7.Midplane = True

# Sketch on YZ plane
sketch12 = body.newObject("Sketcher::SketchObject", "Sketch011")
sketch12.AttachmentSupport = (doc.getObject("YZ_Plane"), [""])
sketch12.MapMode = "FlatFace"
sketch12.addGeometry([
    Part.Circle(App.Vector(28, 30, 0), App.Vector(0, 0, 1), 2.8),
    Part.Circle(App.Vector(74, 30, 0), App.Vector(0, 0, 1), 2.8),
    Part.Circle(App.Vector(74, 10, 0), App.Vector(0, 0, 1), 2.8),
], False)
sketch12.addConstraint([
    Sketcher.Constraint("Equal", 0, 1),
    Sketcher.Constraint("Equal", 1, 2),
    Sketcher.Constraint("Horizontal", 0, 3, 1, 3),
    Sketcher.Constraint("Vertical", 1, 3, 2, 3),
    Sketcher.Constraint("Diameter", 0, Q("5.6 mm")),
    Sketcher.Constraint("DistanceX", -1, 1, 0, 3, Q("28 mm")),
    Sketcher.Constraint("DistanceY", -1, 1, 0, 3, Q("30 mm")),
    Sketcher.Constraint("DistanceX", -1, 1, 1, 3, Q("74 mm")),
    Sketcher.Constraint("DistanceY", -1, 1, 2, 3, Q("10 mm")),
])
pocket8 = body.newObject("PartDesign::Pocket", "Pocket007")
pocket8.Profile = sketch12
pocket8.Type = "ThroughAll"
pocket8.Reversed = True

# Sketch on XZ plane
sketch13 = body.newObject("Sketcher::SketchObject", "Sketch012")
sketch13.AttachmentSupport = (doc.getObject("XZ_Plane"), [""])
sketch13.MapMode = "FlatFace"
sketch13.AttachmentOffset = App.Placement(App.Vector(0, 0, -2), App.Rotation())
sketch13.addGeometry(Part.Circle(App.Vector(30, 74, 0), App.Vector(0, 0, 1), 7), False)
sketch13.addConstraint([
    Sketcher.Constraint("Diameter", 0, Q("14 mm")),
    Sketcher.Constraint("DistanceX", -1, 1, 0, 3, Q("30 mm")),
    Sketcher.Constraint("DistanceY", -1, 1, 0, 3, Q("74 mm")),
])
pad5 = body.newObject("PartDesign::Pad", "Pad004")
pad5.Profile = sketch13
pad5.Length = 1
pad5.Reversed = True

# Sketch on XZ plane
sketch14 = body.newObject("Sketcher::SketchObject", "Sketch013")
sketch14.AttachmentSupport = (doc.getObject("XZ_Plane"), [""])
sketch14.MapMode = "FlatFace"
sketch14.addGeometry(Part.Circle(App.Vector(30, 74, 0), App.Vector(0, 0, 1), 2.8), False)
sketch14.addConstraint([
    Sketcher.Constraint("Diameter", 0, Q("5.6 mm")),
    Sketcher.Constraint("DistanceX", -1, 1, 0, 3, Q("30 mm")),
    Sketcher.Constraint("DistanceY", -1, 1, 0, 3, Q("74 mm")),
])
pocket9 = body.newObject("PartDesign::Pocket", "Pocket008")
pocket9.Profile = sketch14
pocket9.Length = 4
doc.recompute()

chamfer = body.newObject("PartDesign::Chamfer", "Chamfer")
chamfer.Base = (pocket9, edges_at(pocket9, [(3, 21, 30), (3, 67, 30), (3, 67, 10)]))
chamfer.Size = 0.98
doc.recompute()

chamfer2 = body.newObject("PartDesign::Chamfer", "Chamfer001")
chamfer2.Base = (chamfer, edges_at(chamfer, [(42.2, 111.4, 38), (2.2, 111.4, 38)]))
chamfer2.Size = 1.58

doc.recompute()
